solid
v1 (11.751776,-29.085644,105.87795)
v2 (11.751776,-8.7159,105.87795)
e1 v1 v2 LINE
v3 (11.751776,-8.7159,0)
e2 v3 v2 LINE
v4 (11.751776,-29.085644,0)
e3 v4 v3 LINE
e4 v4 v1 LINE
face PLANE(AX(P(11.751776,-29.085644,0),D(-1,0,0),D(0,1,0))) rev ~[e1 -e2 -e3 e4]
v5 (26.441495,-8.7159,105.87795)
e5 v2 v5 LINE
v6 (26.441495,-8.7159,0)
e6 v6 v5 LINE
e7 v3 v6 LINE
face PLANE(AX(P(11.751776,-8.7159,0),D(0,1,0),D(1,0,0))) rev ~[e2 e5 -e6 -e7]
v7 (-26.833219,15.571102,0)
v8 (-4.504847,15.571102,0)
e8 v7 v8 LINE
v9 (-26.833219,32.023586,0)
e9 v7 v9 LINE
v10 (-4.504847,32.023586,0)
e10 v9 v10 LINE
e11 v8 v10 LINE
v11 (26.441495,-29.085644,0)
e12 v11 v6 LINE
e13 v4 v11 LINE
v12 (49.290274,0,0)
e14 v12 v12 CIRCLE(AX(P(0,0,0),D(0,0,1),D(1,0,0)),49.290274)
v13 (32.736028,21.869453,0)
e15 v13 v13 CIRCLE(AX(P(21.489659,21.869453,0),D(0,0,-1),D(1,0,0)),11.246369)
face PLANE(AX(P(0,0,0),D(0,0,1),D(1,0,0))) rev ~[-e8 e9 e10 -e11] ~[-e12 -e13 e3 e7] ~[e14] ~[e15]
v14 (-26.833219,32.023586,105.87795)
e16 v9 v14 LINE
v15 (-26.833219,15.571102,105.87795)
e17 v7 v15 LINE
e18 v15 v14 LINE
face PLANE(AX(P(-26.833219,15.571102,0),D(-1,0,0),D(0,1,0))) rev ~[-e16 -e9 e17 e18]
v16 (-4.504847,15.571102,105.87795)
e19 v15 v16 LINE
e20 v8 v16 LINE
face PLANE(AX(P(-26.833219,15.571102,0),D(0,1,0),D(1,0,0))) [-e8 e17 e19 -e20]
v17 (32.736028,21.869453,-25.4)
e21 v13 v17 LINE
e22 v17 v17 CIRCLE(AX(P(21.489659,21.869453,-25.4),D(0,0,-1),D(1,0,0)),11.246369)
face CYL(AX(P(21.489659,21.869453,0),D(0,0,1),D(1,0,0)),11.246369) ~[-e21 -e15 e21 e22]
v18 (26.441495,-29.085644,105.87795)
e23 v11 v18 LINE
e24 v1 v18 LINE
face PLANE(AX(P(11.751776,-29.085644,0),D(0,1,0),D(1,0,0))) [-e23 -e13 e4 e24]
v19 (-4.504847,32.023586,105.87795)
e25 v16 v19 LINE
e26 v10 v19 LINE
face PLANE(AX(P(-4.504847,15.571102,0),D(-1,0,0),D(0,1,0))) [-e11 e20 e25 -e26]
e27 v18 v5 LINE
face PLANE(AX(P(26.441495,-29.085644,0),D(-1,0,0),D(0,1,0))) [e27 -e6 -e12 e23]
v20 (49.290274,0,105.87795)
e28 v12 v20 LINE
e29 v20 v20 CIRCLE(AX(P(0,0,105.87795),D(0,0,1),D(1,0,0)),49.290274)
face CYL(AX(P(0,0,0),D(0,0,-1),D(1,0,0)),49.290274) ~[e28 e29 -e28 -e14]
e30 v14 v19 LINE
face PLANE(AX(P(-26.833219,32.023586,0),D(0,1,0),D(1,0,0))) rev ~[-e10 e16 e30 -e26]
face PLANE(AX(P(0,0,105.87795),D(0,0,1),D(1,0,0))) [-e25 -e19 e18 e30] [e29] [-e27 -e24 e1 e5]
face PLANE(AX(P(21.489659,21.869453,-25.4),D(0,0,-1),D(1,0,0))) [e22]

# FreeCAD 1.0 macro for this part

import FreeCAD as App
import Part
import Sketcher

V = App.Vector
Q = App.Units.Quantity

doc = App.newDocument("Part")
body = doc.addObject("PartDesign::Body", "Body")

# Sketch on XY plane
sketch1 = doc.addObject("Sketcher::SketchObject", "Sketch")
body.addObject(sketch1)
sketch1.AttachmentSupport = (doc.XY_Plane, [""])
sketch1.MapMode = "FlatFace"
sketch1.addGeometry(Part.Circle(V(0, 0, 0), V(0, 0, 1), 49.290274), False)
sketch1.addGeometry(Part.LineSegment(V(26.441495, -29.085644, 0), V(11.751776, -29.085644, 0)), False)
sketch1.addGeometry(Part.LineSegment(V(11.751776, -29.085644, 0), V(11.751776, -8.7159, 0)), False)
sketch1.addGeometry(Part.LineSegment(V(11.751776, -8.7159, 0), V(26.441495, -8.7159, 0)), False)
sketch1.addGeometry(Part.LineSegment(V(26.441495, -8.7159, 0), V(26.441495, -29.085644, 0)), False)
sketch1.addGeometry(Part.LineSegment(V(-4.504847, 15.571102, 0), V(-26.833219, 15.571102, 0)), False)
sketch1.addGeometry(Part.LineSegment(V(-26.833219, 15.571102, 0), V(-26.833219, 32.023586, 0)), False)
sketch1.addGeometry(Part.LineSegment(V(-26.833219, 32.023586, 0), V(-4.504847, 32.023586, 0)), False)
sketch1.addGeometry(Part.LineSegment(V(-4.504847, 32.023586, 0), V(-4.504847, 15.571102, 0)), False)
sketch1.addConstraint(Sketcher.Constraint("Coincident", 1, 2, 2, 1))
sketch1.addConstraint(Sketcher.Constraint("Coincident", 2, 2, 3, 1))
sketch1.addConstraint(Sketcher.Constraint("Coincident", 3, 2, 4, 1))
sketch1.addConstraint(Sketcher.Constraint("Coincident", 4, 2, 1, 1))
sketch1.addConstraint(Sketcher.Constraint("Coincident", 5, 2, 6, 1))
sketch1.addConstraint(Sketcher.Constraint("Coincident", 6, 2, 7, 1))
sketch1.addConstraint(Sketcher.Constraint("Coincident", 7, 2, 8, 1))
sketch1.addConstraint(Sketcher.Constraint("Coincident", 8, 2, 5, 1))
sketch1.addConstraint(Sketcher.Constraint("Horizontal", 1))
sketch1.addConstraint(Sketcher.Constraint("Vertical", 2))
sketch1.addConstraint(Sketcher.Constraint("Horizontal", 3))
sketch1.addConstraint(Sketcher.Constraint("Vertical", 4))
sketch1.addConstraint(Sketcher.Constraint("Horizontal", 5))
sketch1.addConstraint(Sketcher.Constraint("Vertical", 6))
sketch1.addConstraint(Sketcher.Constraint("Horizontal", 7))
sketch1.addConstraint(Sketcher.Constraint("Vertical", 8))
sketch1.addConstraint(Sketcher.Constraint("Coincident", 0, 3, -1, 1))
sketch1.addConstraint(Sketcher.Constraint("Diameter", 0, 98.580548))
sketch1.addConstraint(Sketcher.Constraint("DistanceX", 1, 2, 1, 1, 14.689719))
sketch1.addConstraint(Sketcher.Constraint("DistanceY", 2, 2, -1, 1, 8.7159))
sketch1.addConstraint(Sketcher.Constraint("DistanceX", 5, 2, 5, 1, 22.328372))
sketch1.addConstraint(Sketcher.Constraint("DistanceY", 2, 1, 2, 2, 20.369744))
sketch1.addConstraint(Sketcher.Constraint("DistanceY", 6, 1, 6, 2, 16.452484))
sketch1.addConstraint(Sketcher.Constraint("DistanceX", 5, 2, -1, 1, 26.833219))
sketch1.addConstraint(Sketcher.Constraint("DistanceY", 1, 2, 6, 2, 61.10923))
sketch1.addConstraint(Sketcher.Constraint("DistanceX", 7, 2, 3, 2, 30.946342))
pad1 = doc.addObject("PartDesign::Pad", "Pad")
body.addObject(pad1)
pad1.Profile = sketch1
pad1.Length = 105.87795

# Sketch on XY plane
sketch2 = doc.addObject("Sketcher::SketchObject", "Sketch001")
body.addObject(sketch2)
sketch2.AttachmentSupport = (doc.XY_Plane, [""])
sketch2.MapMode = "FlatFace"
sketch2.addGeometry(Part.Circle(V(21.489659, 21.869453, 0), V(0, 0, 1), 11.246369), False)
sketch2.addConstraint(Sketcher.Constraint("Diameter", 0, 22.492738))
sketch2.addConstraint(Sketcher.Constraint("DistanceX", -1, 1, 0, 3, 21.489659))
sketch2.addConstraint(Sketcher.Constraint("DistanceY", -1, 1, 0, 3, 21.869453))
pad2 = doc.addObject("PartDesign::Pad", "Pad001")
body.addObject(pad2)
pad2.Profile = sketch2
pad2.Length = Q("1 in")
pad2.Reversed = True

doc.recompute()
